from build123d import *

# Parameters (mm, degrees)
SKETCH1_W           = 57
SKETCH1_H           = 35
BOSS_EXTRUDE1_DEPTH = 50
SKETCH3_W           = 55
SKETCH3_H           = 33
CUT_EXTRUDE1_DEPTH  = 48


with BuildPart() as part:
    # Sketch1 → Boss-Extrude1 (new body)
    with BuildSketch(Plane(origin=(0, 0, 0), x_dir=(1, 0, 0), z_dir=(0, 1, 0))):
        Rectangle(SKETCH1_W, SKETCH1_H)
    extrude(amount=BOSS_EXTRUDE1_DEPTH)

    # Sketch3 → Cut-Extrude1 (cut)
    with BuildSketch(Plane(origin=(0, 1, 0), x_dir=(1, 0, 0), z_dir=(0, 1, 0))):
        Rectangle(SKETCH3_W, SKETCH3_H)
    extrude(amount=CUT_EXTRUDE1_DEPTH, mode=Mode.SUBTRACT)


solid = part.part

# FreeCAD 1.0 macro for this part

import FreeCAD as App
import Part
import Sketcher
from FreeCAD import Vector
Q = App.Units.Quantity

doc = App.newDocument("Part")
body = doc.addObject("PartDesign::Body", "Body")

# Sketch on XZ plane
sketch1 = body.newObject("Sketcher::SketchObject", "Sketch")
sketch1.AttachmentSupport = (doc.getObject("XZ_Plane"), [""])
sketch1.MapMode = "FlatFace"
sketch1.addGeometry([
    Part.LineSegment(Vector(-28, -18, 0), Vector(-28, 18, 0)),
    Part.LineSegment(Vector(-28, 18, 0), Vector(28, 18, 0)),
    Part.LineSegment(Vector(28, 18, 0), Vector(28, -18, 0)),
    Part.LineSegment(Vector(28, -18, 0), Vector(-28, -18, 0)),
], False)
sketch1.addConstraint([
    Sketcher.Constraint("Coincident", 0, 2, 1, 1),
    Sketcher.Constraint("Coincident", 1, 2, 2, 1),
    Sketcher.Constraint("Coincident", 2, 2, 3, 1),
    Sketcher.Constraint("Coincident", 3, 2, 0, 1),
    Sketcher.Constraint("Vertical", 0),
    Sketcher.Constraint("Horizontal", 1),
    Sketcher.Constraint("Vertical", 2),
    Sketcher.Constraint("Horizontal", 3),
    Sketcher.Constraint("Symmetric", 0, 2, 2, 2, -1, 1),
    Sketcher.Constraint("DistanceX", 1, 1, 1, 2, Q("57 mm")),
    Sketcher.Constraint("DistanceY", 0, 1, 0, 2, Q("35 mm")),
])
pad1 = body.newObject("PartDesign::Pad", "Pad")
pad1.Profile = sketch1
pad1.Length = 50
pad1.Reversed = True

# Sketch on XZ plane
sketch2 = body.newObject("Sketcher::SketchObject", "Sketch001")
sketch2.AttachmentSupport = (doc.getObject("XZ_Plane"), [""])
sketch2.MapMode = "FlatFace"
sketch2.AttachmentOffset = App.Placement(Vector(0, 0, -1), App.Rotation())
sketch2.addGeometry([
    Part.LineSegment(Vector(-28, -16, 0), Vector(-28, 16, 0)),
    Part.LineSegment(Vector(-28, 16, 0), Vector(28, 16, 0)),
    Part.LineSegment(Vector(28, 16, 0), Vector(28, -16, 0)),
    Part.LineSegment(Vector(28, -16, 0), Vector(-28, -16, 0)),
], False)
sketch2.addConstraint([
    Sketcher.Constraint("Coincident", 0, 2, 1, 1),
    Sketcher.Constraint("Coincident", 1, 2, 2, 1),
    Sketcher.Constraint("Coincident", 2, 2, 3, 1),
    Sketcher.Constraint("Coincident", 3, 2, 0, 1),
    Sketcher.Constraint("Vertical", 0),
    Sketcher.Constraint("Horizontal", 1),
    Sketcher.Constraint("Vertical", 2),
    Sketcher.Constraint("Horizontal", 3),
    Sketcher.Constraint("Symmetric", 0, 2, 2, 2, -1, 1),
    Sketcher.Constraint("DistanceX", 1, 1, 1, 2, Q("55 mm")),
    Sketcher.Constraint("DistanceY", 0, 1, 0, 2, Q("33 mm")),
])
pocket1 = body.newObject("PartDesign::Pocket", "Pocket")
pocket1.Profile = sketch2
pocket1.Length = 48

doc.recompute()
